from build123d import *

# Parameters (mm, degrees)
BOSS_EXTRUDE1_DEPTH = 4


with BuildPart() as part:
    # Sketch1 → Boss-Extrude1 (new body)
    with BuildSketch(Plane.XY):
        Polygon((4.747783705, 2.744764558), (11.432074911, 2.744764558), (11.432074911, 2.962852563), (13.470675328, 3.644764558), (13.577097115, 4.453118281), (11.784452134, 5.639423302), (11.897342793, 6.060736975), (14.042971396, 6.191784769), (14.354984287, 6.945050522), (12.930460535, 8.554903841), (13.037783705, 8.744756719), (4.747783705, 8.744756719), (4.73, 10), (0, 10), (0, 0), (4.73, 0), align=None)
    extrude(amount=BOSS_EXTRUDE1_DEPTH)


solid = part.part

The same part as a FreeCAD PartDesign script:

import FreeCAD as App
import Part
import Sketcher

V = App.Vector
Q = App.Units.Quantity


def add_polygon(sketch, points):
    """Adds a closed chain of lines whose ends are joined by coincident constraints."""
    first, n = sketch.GeometryCount, len(points)
    for a, b in zip(points, points[1:] + points[:1]):
        sketch.addGeometry(Part.LineSegment(App.Vector(*a, 0), App.Vector(*b, 0)), False)
    for i in range(n):
        sketch.addConstraint(Sketcher.Constraint("Coincident", first + i, 2, first + (i + 1) % n, 1))

doc = App.newDocument("Part")
body = doc.addObject("PartDesign::Body", "Body")

sketch1 = doc.addObject("Sketcher::SketchObject", "Sketch")
body.addObject(sketch1)
sketch1.AttachmentSupport = (doc.XY_Plane, [""])
sketch1.MapMode = "FlatFace"
add_polygon(sketch1, [(4.747784, 2.744765), (11.432075, 2.744765), (11.432075, 2.962853), (13.470675, 3.644765), (13.577097, 4.453118), (11.784452, 5.639423), (11.897343, 6.060737), (14.042971, 6.191785), (14.354984, 6.945051), (12.930461, 8.554904), (13.037784, 8.744757), (4.747784, 8.744757), (4.73, 10), (0, 10), (0, 0), (4.73, 0)])
sketch1.addConstraint(Sketcher.Constraint("Horizontal", 0))
sketch1.addConstraint(Sketcher.Constraint("Vertical", 1))
sketch1.addConstraint(Sketcher.Constraint("Horizontal", 10))
sketch1.addConstraint(Sketcher.Constraint("Horizontal", 12))
sketch1.addConstraint(Sketcher.Constraint("Vertical", 13))
sketch1.addConstraint(Sketcher.Constraint("Horizontal", 14))
sketch1.addConstraint(Sketcher.Constraint("Coincident", 13, 2, -1, 1))
sketch1.addConstraint(Sketcher.Constraint("Vertical", 11, 2, 14, 2))
sketch1.addConstraint(Sketcher.Constraint("Vertical", 10, 2, 15, 2))
sketch1.addConstraint(Sketcher.Constraint("Equal", 2, 4))
sketch1.addConstraint(Sketcher.Constraint("Equal", 4, 6))
sketch1.addConstraint(Sketcher.Constraint("Equal", 3, 7))
sketch1.addConstraint(Sketcher.Constraint("Equal", 6, 8))
sketch1.addConstraint(Sketcher.Constraint("DistanceY", 13, 2, 13, 1, 10.0))
sketch1.addConstraint(Sketcher.Constraint("Angle", 5, Q("75 deg")))
sketch1.addConstraint(Sketcher.Constraint("Angle", 3, Q("82.5 deg")))
sketch1.addConstraint(Sketcher.Constraint("Angle", 7, Q("67.5 deg")))
sketch1.addConstraint(Sketcher.Constraint("DistanceX", 10, 2, 10, 1, 8.29))
sketch1.addConstraint(Sketcher.Constraint("DistanceX", 12, 2, 12, 1, 4.73))
sketch1.addConstraint(Sketcher.Constraint("DistanceY", 0, 2, 2, 2, 0.9))
sketch1.addConstraint(Sketcher.Constraint("DistanceX", 0, 1, 0, 2, 6.684291))
sketch1.addConstraint(Sketcher.Constraint("DistanceY", 1, 1, 1, 2, 0.218088))
sketch1.addConstraint(Sketcher.Constraint("DistanceX", 1, 2, 2, 2, 2.0386))
sketch1.addConstraint(Sketcher.Constraint("DistanceX", 9, 2, 7, 2, 1.317201))
sketch1.addConstraint(Sketcher.Constraint("Distance", 3, 0.815329))
sketch1.addConstraint(Sketcher.Constraint("Distance", 9, 0.218088))
sketch1.addConstraint(Sketcher.Constraint("Distance", 11, 1.255369))
sketch1.addConstraint(Sketcher.Constraint("DistanceY", -1, 1, 3, 2, 4.453118))
sketch1.addConstraint(Sketcher.Constraint("DistanceX", -1, 1, 6, 2, 14.042971))
sketch1.addConstraint(Sketcher.Constraint("DistanceY", -1, 1, 7, 2, 6.945051))
sketch1.addConstraint(Sketcher.Constraint("DistanceY", 2, 2, 4, 2, 1.994659))
pad1 = doc.addObject("PartDesign::Pad", "Pad")
body.addObject(pad1)
pad1.Profile = sketch1
pad1.Length = 4

doc.recompute()
